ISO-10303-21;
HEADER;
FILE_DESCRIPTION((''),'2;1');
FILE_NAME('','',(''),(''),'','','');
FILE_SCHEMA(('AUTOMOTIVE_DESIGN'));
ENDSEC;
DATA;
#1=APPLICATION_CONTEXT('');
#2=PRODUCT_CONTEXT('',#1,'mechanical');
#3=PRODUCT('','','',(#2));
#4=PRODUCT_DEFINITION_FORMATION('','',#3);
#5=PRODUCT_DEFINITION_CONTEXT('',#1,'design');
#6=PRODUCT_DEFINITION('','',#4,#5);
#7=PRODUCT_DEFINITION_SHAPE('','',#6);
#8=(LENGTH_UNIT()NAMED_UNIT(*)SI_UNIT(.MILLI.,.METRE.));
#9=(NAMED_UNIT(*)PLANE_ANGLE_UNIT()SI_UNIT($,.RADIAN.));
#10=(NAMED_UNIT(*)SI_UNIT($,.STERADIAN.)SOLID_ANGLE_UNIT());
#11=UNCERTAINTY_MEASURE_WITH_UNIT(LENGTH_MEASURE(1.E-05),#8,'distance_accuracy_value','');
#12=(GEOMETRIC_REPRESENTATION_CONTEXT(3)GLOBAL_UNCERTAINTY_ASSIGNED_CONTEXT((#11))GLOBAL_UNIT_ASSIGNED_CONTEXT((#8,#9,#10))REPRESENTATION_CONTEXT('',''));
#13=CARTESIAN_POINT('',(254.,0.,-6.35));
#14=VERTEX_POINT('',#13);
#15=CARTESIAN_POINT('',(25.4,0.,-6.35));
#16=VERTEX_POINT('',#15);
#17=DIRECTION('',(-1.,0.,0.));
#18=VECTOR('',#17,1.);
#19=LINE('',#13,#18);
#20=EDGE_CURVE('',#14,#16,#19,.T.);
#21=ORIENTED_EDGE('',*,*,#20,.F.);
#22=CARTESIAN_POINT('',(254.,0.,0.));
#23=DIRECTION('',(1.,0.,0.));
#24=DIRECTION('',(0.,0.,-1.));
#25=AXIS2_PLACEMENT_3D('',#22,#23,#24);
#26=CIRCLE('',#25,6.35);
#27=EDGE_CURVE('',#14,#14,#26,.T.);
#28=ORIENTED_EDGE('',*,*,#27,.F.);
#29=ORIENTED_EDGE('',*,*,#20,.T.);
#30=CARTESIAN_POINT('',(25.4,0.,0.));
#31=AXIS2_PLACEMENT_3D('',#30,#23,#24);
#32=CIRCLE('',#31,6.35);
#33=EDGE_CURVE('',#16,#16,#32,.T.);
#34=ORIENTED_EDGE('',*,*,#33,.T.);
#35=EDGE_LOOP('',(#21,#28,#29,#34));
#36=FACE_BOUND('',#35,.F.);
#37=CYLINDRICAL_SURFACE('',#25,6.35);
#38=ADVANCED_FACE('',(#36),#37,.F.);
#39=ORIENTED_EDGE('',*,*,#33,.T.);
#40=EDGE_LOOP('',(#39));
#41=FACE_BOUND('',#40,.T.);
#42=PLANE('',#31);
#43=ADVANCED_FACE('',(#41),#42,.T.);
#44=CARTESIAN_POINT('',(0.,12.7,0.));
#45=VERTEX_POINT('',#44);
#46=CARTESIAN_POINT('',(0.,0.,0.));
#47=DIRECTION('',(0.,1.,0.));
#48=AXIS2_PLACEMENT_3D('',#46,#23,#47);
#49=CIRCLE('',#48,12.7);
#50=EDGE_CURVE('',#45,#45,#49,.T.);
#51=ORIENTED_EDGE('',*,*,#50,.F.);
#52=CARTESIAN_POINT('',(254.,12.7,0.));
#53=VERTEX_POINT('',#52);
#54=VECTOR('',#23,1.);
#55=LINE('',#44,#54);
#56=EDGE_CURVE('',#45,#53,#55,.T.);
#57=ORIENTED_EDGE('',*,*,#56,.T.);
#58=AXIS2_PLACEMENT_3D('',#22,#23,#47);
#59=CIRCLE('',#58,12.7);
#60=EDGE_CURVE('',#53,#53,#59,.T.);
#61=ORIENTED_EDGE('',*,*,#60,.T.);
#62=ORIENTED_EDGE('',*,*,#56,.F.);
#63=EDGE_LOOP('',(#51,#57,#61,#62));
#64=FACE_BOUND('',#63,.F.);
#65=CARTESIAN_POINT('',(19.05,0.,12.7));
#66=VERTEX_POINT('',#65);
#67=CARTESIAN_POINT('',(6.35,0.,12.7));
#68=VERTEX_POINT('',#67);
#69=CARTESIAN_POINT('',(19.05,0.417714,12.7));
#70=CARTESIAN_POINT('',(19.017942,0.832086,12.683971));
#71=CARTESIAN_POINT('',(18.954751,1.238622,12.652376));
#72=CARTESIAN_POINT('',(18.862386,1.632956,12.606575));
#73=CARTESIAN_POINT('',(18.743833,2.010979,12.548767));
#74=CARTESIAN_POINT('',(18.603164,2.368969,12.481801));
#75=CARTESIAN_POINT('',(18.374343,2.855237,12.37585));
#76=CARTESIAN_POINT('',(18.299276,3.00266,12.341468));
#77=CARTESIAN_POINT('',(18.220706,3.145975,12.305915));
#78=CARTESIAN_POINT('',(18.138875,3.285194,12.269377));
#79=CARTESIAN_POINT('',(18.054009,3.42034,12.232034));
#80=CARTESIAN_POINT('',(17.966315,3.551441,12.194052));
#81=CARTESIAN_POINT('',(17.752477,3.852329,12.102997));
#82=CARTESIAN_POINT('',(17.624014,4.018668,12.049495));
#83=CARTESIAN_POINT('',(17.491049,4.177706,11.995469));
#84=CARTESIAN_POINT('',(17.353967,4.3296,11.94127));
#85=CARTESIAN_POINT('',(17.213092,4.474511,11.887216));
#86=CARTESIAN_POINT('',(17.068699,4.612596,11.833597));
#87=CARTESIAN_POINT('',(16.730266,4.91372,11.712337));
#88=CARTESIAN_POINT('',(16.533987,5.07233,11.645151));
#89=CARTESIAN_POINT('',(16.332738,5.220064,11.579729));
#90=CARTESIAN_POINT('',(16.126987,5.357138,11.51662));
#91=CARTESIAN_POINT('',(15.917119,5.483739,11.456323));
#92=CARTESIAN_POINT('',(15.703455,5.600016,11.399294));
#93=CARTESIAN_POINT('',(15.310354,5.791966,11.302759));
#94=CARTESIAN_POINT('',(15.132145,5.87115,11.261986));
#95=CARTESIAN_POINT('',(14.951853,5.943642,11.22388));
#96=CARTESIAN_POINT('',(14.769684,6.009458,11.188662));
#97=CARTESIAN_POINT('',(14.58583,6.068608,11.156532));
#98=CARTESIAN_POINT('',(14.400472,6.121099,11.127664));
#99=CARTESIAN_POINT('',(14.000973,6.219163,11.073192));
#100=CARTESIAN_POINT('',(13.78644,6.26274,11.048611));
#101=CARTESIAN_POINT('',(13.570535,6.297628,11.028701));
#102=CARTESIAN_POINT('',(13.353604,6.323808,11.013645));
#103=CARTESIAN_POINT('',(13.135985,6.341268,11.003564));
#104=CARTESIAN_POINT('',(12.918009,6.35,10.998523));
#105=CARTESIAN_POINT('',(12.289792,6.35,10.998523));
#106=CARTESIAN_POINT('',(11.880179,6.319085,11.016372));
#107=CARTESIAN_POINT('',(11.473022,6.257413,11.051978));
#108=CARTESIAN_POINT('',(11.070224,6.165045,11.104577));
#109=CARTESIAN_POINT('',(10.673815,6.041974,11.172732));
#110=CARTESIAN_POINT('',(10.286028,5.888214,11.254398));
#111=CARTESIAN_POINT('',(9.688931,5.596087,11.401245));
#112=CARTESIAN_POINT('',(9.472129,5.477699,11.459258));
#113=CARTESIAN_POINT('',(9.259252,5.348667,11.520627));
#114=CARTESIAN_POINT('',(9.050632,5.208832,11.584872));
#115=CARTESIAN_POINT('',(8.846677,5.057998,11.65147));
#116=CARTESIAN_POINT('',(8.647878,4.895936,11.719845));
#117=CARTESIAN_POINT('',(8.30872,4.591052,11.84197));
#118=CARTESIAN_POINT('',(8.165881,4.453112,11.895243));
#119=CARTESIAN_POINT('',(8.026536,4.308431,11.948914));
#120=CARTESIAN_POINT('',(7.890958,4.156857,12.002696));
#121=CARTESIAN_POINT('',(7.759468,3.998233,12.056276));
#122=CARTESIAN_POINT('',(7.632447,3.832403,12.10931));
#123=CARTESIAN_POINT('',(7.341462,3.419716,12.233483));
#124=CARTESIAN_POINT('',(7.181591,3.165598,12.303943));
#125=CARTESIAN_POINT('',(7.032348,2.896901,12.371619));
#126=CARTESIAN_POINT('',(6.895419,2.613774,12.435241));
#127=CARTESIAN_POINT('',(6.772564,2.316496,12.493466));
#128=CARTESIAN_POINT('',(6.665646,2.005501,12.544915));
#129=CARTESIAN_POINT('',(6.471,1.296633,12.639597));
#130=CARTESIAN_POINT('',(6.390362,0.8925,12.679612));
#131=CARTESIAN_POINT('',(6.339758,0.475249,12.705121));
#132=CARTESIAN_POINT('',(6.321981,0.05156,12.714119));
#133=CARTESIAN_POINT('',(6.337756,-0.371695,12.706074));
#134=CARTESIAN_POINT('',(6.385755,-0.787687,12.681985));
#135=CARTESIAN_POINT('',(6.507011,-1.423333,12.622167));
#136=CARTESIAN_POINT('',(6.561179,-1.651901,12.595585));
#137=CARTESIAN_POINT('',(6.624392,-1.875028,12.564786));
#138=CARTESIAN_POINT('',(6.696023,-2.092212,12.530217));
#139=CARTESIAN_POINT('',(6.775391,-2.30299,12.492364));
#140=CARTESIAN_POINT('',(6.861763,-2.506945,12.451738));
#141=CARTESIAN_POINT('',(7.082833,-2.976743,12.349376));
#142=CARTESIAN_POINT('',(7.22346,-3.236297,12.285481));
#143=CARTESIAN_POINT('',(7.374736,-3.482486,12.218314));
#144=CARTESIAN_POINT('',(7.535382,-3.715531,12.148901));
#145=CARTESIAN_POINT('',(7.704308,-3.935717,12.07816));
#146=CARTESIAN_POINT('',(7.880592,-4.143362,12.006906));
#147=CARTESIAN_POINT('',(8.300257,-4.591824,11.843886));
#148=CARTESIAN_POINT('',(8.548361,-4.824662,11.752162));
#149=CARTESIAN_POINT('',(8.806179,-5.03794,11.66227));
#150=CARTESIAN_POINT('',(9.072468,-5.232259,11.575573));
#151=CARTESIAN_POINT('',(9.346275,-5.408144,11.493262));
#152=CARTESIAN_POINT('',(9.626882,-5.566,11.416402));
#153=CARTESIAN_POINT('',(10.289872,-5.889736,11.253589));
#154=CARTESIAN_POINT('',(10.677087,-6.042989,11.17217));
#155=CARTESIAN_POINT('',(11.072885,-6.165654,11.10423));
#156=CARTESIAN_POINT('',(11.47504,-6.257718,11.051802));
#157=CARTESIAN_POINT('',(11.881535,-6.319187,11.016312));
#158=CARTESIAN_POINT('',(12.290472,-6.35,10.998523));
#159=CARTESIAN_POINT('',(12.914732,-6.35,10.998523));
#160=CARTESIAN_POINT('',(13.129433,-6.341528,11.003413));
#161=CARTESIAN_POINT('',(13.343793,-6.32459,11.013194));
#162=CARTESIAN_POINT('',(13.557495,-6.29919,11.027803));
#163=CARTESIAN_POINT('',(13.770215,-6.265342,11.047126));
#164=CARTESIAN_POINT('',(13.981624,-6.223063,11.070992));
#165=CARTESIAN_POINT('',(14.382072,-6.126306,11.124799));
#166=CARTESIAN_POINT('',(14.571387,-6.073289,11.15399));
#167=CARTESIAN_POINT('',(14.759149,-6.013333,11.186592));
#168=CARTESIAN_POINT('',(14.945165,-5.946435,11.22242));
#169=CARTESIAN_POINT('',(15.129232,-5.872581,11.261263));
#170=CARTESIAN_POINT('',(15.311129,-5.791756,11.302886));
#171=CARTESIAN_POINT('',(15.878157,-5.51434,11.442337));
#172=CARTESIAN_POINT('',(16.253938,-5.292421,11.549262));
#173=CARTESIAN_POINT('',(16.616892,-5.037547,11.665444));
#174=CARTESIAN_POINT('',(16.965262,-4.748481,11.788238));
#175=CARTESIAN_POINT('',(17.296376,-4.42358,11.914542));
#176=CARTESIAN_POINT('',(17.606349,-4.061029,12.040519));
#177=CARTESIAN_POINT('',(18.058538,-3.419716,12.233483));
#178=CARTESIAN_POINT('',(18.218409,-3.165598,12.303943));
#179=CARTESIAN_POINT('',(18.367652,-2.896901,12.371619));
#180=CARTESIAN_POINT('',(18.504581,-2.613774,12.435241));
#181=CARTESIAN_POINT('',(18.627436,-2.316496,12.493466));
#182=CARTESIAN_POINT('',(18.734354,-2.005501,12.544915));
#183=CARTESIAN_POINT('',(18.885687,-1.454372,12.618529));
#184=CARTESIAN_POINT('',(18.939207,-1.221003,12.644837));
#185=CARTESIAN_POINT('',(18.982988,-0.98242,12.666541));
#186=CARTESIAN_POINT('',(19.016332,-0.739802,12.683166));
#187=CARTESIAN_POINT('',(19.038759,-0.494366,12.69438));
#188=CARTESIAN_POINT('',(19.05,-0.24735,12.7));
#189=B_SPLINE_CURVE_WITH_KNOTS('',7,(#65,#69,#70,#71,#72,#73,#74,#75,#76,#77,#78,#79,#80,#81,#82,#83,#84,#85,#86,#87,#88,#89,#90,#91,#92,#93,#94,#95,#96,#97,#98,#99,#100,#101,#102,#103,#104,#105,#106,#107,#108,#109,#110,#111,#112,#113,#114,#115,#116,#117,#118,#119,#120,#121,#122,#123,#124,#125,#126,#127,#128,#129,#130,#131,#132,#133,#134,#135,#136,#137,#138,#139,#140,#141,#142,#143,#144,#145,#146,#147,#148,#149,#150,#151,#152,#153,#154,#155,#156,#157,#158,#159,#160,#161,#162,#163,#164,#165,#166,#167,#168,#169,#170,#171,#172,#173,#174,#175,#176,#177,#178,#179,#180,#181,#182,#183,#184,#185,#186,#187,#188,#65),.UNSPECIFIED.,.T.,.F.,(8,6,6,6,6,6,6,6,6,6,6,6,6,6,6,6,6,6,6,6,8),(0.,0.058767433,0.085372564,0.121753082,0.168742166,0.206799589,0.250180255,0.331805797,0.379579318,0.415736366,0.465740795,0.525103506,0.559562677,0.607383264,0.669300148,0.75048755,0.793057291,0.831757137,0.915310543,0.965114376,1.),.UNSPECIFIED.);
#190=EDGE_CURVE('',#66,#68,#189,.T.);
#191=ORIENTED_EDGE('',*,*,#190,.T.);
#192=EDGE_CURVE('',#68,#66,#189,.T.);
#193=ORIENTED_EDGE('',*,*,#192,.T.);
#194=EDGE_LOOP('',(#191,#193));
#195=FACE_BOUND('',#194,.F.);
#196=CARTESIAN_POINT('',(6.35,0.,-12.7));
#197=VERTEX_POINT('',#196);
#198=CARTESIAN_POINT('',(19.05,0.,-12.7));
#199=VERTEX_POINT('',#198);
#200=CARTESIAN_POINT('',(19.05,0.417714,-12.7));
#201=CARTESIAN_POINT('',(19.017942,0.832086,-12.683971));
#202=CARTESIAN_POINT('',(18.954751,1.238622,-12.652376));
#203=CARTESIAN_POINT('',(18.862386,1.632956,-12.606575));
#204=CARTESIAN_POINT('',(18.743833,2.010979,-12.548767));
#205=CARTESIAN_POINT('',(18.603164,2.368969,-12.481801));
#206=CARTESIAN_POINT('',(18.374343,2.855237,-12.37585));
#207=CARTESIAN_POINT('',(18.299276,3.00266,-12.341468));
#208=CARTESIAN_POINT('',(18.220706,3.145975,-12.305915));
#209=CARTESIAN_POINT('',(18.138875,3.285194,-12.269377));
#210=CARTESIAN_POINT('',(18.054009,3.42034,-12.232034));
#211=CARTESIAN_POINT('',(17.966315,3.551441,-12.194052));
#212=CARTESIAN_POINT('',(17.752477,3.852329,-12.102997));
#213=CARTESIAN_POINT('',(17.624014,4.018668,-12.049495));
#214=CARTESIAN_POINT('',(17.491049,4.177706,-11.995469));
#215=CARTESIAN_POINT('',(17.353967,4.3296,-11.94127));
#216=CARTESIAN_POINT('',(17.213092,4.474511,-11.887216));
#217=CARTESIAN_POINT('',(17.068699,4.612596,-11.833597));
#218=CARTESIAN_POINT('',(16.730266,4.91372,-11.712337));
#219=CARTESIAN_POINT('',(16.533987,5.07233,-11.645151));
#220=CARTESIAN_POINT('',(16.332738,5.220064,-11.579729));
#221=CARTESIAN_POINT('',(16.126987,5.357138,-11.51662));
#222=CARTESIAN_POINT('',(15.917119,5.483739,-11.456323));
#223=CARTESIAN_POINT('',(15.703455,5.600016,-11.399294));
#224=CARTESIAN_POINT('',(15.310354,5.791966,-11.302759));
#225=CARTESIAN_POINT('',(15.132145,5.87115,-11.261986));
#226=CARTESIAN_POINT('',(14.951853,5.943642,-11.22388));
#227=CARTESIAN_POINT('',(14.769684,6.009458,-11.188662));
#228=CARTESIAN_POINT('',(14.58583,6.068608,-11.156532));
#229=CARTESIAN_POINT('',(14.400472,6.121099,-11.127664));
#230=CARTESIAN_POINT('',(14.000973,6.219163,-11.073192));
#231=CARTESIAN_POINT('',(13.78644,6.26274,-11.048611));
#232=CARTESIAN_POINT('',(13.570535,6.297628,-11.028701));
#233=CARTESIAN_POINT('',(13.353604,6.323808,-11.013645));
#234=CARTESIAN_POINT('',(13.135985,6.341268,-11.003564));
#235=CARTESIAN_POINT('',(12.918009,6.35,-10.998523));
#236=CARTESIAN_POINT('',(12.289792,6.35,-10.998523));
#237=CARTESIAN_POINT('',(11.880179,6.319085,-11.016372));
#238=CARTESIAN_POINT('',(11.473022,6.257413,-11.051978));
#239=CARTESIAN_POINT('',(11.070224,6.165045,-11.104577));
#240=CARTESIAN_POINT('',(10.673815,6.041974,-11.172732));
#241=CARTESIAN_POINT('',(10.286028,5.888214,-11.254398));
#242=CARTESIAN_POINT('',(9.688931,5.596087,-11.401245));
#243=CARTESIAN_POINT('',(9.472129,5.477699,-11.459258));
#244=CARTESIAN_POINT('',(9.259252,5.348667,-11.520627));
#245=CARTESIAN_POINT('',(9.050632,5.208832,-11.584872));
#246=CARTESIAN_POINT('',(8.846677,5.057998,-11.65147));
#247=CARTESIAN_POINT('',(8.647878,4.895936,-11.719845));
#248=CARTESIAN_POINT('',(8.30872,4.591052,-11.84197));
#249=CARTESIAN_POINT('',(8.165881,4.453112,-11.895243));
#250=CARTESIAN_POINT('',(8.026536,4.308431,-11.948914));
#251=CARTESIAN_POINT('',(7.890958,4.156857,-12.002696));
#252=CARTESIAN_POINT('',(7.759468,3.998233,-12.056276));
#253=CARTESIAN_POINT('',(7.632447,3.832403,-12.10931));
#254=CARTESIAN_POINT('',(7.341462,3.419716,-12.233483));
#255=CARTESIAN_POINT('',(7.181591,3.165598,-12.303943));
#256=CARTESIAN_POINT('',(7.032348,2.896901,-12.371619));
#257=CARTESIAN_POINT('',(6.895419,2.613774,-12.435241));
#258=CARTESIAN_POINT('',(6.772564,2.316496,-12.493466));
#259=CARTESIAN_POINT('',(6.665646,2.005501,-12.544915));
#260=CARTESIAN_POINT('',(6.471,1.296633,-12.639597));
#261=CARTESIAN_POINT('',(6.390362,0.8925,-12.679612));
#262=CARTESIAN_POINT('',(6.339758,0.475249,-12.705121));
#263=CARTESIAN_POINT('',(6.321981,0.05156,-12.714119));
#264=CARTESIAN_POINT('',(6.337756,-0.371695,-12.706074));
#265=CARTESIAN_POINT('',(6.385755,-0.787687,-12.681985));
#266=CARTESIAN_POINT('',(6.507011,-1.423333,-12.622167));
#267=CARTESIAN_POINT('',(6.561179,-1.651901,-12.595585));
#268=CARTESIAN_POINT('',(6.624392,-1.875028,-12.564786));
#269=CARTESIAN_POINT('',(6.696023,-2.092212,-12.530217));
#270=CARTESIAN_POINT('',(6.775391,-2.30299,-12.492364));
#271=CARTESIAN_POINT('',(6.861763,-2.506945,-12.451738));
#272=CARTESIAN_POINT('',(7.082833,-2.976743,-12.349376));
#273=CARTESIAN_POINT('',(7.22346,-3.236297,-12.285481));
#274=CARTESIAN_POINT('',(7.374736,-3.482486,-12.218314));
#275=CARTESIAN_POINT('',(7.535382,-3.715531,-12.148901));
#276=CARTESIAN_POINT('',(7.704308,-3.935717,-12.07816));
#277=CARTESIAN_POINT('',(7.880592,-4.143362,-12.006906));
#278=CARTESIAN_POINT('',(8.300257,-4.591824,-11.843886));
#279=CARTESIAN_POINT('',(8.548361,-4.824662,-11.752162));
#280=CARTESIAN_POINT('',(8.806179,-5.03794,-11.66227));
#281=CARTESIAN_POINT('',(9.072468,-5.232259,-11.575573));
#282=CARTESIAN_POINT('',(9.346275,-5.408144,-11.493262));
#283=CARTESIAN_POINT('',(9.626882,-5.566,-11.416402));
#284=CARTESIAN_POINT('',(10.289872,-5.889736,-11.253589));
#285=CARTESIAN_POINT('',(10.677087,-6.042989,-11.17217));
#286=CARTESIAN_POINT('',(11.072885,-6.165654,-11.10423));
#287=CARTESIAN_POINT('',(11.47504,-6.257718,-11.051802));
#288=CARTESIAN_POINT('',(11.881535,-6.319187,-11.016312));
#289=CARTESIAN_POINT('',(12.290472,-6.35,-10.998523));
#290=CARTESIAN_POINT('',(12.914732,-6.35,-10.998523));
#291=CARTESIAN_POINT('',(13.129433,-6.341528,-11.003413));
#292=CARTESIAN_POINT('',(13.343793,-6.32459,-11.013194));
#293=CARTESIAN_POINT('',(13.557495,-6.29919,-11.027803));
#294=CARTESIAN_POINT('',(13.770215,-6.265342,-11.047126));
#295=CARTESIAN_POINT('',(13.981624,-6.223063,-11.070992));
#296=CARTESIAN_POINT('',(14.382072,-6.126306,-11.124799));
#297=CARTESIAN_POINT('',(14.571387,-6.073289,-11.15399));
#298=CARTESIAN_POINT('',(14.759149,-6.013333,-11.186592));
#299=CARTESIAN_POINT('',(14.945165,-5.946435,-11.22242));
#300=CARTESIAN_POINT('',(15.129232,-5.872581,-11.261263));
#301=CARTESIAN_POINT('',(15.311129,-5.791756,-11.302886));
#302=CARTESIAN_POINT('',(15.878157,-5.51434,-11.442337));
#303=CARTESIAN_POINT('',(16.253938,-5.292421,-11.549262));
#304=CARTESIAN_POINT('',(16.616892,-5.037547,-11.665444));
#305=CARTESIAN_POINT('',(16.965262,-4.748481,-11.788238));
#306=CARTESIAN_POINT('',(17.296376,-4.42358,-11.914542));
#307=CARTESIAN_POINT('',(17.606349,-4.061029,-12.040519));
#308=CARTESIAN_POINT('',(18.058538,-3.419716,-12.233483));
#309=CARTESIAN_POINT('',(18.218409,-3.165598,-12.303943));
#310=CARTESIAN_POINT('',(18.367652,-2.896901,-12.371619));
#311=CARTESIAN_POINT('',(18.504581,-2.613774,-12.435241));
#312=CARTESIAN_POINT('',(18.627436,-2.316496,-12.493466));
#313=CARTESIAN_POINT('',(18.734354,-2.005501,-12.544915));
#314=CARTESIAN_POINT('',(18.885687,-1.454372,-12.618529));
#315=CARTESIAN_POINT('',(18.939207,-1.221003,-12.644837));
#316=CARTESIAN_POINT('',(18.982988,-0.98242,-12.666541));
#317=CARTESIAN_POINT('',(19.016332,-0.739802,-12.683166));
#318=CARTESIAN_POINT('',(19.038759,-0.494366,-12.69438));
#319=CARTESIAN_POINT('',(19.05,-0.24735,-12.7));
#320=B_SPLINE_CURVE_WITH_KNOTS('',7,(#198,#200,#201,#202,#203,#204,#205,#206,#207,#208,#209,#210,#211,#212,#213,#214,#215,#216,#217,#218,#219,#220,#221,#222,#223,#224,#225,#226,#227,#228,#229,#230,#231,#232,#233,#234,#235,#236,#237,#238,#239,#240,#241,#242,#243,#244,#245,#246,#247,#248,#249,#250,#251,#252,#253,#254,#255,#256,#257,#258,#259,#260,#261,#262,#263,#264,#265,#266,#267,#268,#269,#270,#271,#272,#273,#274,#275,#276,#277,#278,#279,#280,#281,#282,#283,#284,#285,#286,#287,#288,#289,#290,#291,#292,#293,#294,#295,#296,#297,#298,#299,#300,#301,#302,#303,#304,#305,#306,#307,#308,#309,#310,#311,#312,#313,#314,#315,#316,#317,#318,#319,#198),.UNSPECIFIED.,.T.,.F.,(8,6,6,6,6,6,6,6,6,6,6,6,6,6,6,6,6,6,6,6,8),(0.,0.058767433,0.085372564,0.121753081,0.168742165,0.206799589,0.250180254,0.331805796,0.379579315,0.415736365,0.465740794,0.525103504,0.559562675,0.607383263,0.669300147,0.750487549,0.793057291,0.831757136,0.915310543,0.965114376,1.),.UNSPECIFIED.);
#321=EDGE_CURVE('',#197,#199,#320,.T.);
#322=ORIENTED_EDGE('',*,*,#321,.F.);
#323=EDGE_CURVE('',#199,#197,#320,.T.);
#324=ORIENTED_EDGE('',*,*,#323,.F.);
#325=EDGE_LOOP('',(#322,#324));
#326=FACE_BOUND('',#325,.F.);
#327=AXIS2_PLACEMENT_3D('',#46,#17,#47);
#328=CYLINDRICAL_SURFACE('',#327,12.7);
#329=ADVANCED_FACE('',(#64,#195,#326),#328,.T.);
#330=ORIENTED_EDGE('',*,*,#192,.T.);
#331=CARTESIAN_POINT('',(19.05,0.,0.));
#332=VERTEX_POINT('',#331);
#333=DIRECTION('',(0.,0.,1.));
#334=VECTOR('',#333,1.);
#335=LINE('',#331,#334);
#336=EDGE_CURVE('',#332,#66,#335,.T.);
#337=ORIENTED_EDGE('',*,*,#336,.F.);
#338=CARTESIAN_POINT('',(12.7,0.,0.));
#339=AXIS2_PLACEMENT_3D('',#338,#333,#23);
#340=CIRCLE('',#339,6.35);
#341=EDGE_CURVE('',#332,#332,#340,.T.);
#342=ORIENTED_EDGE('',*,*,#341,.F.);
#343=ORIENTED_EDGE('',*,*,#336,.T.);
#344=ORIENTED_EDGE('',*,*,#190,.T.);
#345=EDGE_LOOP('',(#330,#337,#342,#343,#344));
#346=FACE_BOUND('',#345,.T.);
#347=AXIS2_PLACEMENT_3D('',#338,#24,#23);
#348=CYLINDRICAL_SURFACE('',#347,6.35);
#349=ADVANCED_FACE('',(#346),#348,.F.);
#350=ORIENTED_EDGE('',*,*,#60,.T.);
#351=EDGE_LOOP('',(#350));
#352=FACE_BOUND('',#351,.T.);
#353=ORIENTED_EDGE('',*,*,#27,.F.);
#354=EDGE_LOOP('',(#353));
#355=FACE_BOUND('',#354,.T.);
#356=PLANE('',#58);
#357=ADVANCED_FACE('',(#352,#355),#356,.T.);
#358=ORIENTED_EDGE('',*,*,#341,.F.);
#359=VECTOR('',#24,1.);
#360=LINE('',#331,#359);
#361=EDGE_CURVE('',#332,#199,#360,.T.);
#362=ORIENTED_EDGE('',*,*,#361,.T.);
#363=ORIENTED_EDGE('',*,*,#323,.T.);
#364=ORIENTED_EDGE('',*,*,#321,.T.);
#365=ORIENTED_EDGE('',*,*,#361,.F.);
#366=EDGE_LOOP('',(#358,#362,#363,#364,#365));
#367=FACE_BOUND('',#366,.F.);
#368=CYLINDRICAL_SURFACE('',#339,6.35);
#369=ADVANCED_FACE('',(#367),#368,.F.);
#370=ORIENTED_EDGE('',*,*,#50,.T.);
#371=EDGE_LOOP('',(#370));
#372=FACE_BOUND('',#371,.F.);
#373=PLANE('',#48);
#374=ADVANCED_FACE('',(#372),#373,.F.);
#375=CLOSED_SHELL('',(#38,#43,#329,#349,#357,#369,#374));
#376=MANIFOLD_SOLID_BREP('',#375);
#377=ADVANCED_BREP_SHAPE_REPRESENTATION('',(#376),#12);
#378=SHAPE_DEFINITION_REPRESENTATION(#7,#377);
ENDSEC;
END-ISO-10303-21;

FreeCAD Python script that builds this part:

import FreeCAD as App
import Part
import Sketcher
from FreeCAD import Vector
Q = App.Units.Quantity

doc = App.newDocument("Part")
body = doc.addObject("PartDesign::Body", "Body")

# Sketch on YZ plane
sketch1 = body.newObject("Sketcher::SketchObject", "Sketch")
sketch1.AttachmentSupport = (doc.getObject("YZ_Plane"), [""])
sketch1.MapMode = "FlatFace"
sketch1.addGeometry(Part.Circle(Vector(0, 0, 0), Vector(0, 0, 1), 13), False)
sketch1.addConstraint(Sketcher.Constraint("Coincident", 0, 3, -1, 1))
sketch1.addConstraint(Sketcher.Constraint("Diameter", 0, Q("1 in")))
pad1 = body.newObject("PartDesign::Pad", "Pad")
pad1.Profile = sketch1
pad1.Length = Q("10 in")

# Sketch on XY plane
sketch2 = body.newObject("Sketcher::SketchObject", "Sketch001")
sketch2.AttachmentSupport = (doc.getObject("XY_Plane"), [""])
sketch2.MapMode = "FlatFace"
sketch2.addGeometry(Part.Circle(Vector(13, 0, 0), Vector(0, 0, 1), 6), False)
sketch2.addConstraint(Sketcher.Constraint("PointOnObject", 0, 3, -1))
sketch2.addConstraint(Sketcher.Constraint("Diameter", 0, Q("0.5 in")))
sketch2.addConstraint(Sketcher.Constraint("DistanceX", -1, 1, 0, 3, Q("0.5 in")))
pocket1 = body.newObject("PartDesign::Pocket", "Pocket")
pocket1.Profile = sketch2
pocket1.Length = Q("1 in")
pocket1.Midplane = True

# Sketch on YZ plane
sketch3 = body.newObject("Sketcher::SketchObject", "Sketch002")
sketch3.AttachmentSupport = (doc.getObject("YZ_Plane"), [""])
sketch3.MapMode = "FlatFace"
sketch3.AttachmentOffset = App.Placement(Vector(0, 0, 10 * 25.4), App.Rotation())
sketch3.addGeometry(Part.Circle(Vector(0, 0, 0), Vector(0, 0, 1), 6), False)
sketch3.addConstraint(Sketcher.Constraint("Coincident", 0, 3, -1, 1))
sketch3.addConstraint(Sketcher.Constraint("Diameter", 0, Q("0.5 in")))
pocket2 = body.newObject("PartDesign::Pocket", "Pocket001")
pocket2.Profile = sketch3
pocket2.Length = Q("9 in")

doc.recompute()
